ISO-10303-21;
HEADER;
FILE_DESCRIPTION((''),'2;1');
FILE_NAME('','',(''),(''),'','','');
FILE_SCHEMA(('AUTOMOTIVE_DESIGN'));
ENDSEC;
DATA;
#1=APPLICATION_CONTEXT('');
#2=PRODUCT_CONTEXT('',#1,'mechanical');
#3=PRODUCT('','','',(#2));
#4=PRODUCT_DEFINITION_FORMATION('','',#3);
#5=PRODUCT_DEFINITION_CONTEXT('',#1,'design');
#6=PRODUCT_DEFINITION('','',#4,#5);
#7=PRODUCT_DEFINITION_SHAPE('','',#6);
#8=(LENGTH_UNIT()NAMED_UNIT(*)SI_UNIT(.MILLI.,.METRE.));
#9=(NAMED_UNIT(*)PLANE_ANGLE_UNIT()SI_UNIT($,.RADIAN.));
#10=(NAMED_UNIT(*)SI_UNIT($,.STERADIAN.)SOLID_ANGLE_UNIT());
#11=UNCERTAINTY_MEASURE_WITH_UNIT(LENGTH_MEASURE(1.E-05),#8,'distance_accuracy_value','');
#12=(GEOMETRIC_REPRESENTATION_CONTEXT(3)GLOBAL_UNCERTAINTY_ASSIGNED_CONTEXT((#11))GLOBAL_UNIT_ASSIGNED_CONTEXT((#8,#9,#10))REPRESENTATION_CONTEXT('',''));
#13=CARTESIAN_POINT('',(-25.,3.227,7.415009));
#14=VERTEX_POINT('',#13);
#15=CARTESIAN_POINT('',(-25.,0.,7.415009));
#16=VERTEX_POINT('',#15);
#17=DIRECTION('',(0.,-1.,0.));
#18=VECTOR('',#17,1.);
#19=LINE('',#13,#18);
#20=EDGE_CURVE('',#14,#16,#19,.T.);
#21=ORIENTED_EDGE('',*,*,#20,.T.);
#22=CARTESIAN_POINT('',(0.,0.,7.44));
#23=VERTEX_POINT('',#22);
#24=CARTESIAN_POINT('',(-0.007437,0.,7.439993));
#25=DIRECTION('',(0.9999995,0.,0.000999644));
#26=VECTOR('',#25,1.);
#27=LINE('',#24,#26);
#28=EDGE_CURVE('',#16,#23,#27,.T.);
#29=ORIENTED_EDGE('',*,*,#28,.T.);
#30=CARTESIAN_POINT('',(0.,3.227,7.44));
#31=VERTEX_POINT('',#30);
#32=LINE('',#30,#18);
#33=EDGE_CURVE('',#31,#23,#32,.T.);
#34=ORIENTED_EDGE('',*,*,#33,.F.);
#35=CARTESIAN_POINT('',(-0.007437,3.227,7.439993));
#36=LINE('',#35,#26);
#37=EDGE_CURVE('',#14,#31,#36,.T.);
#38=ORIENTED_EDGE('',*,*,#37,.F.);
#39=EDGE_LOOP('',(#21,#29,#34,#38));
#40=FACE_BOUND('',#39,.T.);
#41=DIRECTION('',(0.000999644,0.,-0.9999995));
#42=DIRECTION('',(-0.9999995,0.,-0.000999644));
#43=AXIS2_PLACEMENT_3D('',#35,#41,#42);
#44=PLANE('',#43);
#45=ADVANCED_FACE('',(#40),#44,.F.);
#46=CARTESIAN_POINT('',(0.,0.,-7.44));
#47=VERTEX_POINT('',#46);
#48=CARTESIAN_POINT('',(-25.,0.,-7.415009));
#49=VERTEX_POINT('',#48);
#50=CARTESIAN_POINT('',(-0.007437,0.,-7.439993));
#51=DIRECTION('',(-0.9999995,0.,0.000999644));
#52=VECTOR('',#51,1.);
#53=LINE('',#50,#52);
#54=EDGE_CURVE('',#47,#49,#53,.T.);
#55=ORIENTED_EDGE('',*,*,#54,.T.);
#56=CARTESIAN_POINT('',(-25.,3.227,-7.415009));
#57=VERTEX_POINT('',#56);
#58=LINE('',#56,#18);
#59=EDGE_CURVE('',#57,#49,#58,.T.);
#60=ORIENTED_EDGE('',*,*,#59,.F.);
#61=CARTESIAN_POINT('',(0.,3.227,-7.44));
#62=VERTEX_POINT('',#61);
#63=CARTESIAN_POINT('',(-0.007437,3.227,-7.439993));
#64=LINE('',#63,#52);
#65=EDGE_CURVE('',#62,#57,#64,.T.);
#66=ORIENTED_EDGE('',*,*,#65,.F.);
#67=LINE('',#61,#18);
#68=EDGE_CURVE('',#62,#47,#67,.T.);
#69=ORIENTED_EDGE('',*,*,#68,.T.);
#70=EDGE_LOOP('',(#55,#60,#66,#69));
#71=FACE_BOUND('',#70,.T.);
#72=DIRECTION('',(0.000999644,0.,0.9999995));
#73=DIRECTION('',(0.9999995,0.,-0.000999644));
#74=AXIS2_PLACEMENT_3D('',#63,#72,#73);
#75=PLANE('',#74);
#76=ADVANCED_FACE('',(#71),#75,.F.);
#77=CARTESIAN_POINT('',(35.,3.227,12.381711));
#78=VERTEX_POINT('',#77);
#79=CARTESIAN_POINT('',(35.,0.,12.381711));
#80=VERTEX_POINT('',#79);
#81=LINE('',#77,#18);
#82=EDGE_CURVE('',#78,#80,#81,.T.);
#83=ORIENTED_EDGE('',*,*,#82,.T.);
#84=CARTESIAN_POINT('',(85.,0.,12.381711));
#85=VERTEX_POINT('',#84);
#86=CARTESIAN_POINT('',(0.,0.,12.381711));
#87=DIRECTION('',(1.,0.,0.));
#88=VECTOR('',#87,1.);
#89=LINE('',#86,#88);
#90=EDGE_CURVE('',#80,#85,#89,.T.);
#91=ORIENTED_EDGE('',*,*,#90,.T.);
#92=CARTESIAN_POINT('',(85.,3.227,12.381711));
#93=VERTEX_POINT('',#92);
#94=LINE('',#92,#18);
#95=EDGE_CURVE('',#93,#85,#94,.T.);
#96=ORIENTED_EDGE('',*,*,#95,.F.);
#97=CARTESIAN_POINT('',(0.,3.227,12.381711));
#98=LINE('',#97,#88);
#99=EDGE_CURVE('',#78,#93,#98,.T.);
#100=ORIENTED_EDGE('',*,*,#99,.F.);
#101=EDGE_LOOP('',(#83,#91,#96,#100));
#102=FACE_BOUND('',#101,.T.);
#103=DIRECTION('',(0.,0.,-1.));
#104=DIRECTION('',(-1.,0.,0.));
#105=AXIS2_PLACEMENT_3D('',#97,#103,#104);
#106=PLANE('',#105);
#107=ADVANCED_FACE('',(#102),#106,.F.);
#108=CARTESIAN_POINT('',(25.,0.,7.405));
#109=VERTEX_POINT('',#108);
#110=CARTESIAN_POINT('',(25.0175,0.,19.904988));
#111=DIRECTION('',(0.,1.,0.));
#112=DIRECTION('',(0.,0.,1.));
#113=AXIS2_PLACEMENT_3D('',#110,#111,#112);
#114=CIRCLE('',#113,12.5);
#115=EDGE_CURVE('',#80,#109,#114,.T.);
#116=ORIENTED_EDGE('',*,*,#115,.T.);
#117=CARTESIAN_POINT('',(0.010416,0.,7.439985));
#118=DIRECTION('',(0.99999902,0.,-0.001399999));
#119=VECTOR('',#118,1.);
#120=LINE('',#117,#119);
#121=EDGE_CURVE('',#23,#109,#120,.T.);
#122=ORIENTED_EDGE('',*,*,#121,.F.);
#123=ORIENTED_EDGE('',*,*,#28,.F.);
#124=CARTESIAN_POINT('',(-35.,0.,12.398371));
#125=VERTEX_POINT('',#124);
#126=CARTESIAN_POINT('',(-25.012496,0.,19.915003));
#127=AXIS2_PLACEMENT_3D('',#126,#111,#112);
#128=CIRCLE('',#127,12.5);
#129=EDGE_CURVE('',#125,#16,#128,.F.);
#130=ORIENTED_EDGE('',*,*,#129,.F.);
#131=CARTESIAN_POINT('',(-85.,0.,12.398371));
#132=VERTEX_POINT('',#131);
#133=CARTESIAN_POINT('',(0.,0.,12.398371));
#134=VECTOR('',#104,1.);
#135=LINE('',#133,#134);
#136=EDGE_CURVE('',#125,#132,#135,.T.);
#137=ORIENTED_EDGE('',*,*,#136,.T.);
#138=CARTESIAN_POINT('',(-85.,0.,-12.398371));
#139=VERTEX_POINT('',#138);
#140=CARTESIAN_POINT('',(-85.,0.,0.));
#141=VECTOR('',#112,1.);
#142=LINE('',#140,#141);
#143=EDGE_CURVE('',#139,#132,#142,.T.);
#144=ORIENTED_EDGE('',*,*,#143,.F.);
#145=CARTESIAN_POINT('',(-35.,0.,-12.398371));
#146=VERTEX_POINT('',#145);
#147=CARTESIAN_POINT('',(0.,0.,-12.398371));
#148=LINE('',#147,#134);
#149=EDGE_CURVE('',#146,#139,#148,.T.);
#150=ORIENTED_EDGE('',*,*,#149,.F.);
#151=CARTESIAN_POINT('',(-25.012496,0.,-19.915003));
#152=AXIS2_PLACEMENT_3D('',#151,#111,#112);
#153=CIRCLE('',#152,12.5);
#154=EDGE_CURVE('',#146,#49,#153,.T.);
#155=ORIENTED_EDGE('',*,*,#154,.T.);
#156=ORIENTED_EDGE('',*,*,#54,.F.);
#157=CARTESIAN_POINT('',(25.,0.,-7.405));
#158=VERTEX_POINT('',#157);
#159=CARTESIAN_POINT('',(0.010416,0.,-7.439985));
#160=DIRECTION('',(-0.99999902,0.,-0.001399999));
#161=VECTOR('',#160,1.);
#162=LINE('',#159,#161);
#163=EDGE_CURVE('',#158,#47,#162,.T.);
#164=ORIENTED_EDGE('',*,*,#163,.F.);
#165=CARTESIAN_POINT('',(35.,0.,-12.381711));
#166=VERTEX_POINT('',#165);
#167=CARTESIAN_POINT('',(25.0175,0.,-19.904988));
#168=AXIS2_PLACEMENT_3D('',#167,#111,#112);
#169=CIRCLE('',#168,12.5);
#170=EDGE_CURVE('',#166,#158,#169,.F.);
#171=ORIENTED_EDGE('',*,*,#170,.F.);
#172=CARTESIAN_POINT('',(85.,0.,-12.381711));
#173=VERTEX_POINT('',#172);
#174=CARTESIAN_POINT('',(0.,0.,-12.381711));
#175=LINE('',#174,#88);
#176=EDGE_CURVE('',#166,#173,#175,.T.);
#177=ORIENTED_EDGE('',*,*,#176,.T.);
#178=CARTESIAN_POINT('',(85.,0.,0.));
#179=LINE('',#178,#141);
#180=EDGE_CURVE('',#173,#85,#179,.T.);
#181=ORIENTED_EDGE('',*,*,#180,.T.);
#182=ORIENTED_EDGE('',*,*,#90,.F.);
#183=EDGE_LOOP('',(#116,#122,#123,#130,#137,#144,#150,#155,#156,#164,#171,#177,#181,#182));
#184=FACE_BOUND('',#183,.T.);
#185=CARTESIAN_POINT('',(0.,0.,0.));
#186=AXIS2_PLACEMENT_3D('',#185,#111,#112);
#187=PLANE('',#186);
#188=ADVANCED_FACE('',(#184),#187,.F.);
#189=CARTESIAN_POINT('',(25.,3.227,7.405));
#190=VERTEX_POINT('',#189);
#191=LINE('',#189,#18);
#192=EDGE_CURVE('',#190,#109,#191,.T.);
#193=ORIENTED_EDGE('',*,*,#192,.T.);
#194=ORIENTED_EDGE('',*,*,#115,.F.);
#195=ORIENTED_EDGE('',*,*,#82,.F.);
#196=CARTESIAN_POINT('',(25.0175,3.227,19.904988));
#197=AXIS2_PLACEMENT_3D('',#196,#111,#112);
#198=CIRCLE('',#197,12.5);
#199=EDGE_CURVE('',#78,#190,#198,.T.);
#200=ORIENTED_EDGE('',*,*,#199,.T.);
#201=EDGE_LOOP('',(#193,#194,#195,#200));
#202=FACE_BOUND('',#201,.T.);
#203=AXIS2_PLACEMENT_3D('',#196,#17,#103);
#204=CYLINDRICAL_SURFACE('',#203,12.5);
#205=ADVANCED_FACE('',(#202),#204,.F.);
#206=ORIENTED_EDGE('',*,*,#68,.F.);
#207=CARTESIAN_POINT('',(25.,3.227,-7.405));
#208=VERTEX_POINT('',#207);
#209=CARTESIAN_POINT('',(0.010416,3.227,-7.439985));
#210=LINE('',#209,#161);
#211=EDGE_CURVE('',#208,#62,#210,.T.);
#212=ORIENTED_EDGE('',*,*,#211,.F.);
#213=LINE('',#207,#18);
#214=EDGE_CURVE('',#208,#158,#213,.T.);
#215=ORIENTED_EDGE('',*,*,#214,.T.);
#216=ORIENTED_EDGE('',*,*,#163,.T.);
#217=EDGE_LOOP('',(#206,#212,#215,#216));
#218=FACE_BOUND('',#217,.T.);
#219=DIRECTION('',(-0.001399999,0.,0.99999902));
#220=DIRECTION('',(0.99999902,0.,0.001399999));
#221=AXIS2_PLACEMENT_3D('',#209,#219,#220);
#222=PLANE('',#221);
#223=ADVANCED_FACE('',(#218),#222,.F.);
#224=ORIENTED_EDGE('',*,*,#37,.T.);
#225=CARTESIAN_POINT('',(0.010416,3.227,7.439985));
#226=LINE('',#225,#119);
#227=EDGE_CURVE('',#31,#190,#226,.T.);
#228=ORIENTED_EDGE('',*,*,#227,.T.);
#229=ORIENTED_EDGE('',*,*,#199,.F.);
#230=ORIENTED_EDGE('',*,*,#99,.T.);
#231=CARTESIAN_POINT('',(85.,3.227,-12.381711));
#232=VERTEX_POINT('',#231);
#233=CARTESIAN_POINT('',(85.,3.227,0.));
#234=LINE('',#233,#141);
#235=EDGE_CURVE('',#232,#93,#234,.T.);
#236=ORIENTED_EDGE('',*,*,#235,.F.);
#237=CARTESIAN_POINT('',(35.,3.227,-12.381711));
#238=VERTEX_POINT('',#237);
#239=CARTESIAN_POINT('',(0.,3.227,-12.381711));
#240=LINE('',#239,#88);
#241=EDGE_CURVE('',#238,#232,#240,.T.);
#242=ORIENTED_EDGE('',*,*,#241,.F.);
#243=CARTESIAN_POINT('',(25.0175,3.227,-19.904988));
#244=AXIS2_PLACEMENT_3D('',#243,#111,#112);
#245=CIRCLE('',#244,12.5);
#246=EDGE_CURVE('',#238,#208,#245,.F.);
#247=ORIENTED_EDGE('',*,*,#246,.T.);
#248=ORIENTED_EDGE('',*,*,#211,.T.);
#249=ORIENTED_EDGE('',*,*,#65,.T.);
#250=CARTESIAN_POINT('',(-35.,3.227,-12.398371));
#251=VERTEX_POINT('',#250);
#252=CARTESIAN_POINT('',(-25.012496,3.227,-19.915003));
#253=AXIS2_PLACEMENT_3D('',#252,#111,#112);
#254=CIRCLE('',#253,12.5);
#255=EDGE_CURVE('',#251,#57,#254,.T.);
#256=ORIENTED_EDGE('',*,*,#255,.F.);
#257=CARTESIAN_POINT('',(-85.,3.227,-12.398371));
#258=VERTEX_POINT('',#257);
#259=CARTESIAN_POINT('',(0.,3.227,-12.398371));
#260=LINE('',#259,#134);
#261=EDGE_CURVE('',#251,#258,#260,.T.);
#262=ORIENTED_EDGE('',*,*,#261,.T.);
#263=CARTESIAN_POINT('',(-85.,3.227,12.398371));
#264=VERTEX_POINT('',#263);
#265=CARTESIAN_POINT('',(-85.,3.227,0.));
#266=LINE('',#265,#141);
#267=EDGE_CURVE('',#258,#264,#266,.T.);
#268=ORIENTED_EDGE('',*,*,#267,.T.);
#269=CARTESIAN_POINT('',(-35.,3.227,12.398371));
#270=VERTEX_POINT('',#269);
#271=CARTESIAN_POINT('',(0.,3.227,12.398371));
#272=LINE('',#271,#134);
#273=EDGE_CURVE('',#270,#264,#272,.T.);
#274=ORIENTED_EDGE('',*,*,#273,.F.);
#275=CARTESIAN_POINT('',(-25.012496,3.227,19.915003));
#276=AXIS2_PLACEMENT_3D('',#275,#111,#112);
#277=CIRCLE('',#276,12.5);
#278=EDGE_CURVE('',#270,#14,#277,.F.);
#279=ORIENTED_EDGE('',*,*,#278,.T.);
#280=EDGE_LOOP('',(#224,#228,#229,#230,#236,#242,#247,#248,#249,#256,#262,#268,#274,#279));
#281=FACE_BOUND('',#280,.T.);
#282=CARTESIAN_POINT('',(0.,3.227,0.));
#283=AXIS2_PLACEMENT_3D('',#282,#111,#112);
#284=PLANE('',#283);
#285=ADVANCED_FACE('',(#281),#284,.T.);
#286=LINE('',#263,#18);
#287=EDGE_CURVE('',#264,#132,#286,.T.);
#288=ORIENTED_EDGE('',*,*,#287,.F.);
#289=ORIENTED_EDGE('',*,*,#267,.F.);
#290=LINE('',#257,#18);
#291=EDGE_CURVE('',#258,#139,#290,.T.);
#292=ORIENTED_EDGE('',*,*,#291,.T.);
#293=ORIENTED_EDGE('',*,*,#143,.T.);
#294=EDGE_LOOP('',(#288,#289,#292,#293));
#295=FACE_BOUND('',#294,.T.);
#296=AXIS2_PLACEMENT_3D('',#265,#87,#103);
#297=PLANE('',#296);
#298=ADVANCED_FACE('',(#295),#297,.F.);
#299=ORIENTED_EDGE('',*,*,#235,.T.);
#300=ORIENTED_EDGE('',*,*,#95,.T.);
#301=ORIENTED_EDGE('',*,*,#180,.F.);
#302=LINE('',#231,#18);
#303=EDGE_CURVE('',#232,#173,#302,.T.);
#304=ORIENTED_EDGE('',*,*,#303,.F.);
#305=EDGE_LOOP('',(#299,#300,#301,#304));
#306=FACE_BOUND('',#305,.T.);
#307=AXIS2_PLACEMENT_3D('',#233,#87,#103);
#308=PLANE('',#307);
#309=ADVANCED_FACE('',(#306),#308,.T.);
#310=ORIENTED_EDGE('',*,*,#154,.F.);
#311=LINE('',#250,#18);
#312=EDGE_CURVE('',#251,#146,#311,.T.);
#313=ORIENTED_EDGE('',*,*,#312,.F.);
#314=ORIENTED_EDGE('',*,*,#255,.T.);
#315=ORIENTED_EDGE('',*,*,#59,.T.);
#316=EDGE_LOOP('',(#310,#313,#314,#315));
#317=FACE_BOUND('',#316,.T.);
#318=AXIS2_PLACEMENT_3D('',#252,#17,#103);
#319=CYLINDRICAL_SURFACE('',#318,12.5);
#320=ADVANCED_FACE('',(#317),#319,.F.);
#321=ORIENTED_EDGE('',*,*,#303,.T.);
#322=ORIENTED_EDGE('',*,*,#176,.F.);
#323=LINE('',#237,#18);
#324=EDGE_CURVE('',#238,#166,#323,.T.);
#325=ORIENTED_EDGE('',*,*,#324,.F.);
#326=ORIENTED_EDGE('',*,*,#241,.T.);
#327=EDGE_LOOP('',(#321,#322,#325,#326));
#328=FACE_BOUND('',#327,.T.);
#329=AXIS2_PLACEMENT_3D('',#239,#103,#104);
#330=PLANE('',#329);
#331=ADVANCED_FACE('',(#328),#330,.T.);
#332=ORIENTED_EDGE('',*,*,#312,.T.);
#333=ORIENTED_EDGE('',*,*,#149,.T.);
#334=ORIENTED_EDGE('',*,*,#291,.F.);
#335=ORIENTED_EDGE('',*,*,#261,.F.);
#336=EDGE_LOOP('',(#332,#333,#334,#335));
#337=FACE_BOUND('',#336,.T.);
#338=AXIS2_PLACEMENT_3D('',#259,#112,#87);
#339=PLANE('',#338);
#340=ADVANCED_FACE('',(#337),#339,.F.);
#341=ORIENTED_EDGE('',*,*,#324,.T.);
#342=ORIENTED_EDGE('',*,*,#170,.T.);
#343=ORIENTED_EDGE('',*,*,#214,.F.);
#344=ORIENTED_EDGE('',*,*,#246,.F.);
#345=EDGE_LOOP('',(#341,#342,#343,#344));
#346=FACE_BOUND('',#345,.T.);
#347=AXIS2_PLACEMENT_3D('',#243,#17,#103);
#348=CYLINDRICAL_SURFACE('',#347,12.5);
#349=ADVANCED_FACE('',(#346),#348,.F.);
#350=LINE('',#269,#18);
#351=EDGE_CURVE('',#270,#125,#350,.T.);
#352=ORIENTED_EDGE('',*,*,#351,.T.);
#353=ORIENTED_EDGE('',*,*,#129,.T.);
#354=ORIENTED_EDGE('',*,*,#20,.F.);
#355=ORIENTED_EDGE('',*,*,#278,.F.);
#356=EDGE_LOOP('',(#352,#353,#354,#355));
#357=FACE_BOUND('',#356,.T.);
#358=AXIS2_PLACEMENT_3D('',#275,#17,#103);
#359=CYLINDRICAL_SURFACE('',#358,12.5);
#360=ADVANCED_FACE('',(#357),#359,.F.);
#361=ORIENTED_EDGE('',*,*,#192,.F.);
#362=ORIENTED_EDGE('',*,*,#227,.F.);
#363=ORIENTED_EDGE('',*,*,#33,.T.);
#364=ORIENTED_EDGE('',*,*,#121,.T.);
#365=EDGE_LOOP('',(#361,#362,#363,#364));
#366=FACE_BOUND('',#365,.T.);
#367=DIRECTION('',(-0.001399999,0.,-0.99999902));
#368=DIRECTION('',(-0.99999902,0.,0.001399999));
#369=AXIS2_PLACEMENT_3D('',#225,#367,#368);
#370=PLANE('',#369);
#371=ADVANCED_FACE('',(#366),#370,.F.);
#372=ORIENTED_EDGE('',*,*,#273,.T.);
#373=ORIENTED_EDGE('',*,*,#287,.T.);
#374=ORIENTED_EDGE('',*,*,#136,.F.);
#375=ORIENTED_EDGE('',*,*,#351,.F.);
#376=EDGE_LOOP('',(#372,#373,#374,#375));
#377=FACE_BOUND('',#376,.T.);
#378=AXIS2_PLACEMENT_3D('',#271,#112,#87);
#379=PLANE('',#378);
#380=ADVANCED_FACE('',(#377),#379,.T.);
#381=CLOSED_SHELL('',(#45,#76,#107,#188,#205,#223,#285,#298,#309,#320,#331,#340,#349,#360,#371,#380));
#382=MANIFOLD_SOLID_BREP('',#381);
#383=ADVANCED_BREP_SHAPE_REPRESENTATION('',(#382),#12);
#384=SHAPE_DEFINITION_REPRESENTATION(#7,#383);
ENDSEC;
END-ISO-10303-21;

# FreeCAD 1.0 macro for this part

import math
import FreeCAD as App
import Part
import Sketcher

doc = App.newDocument("Part")
body = doc.addObject("PartDesign::Body", "Body")

# Sketch on XZ plane
sketch1 = body.newObject("Sketcher::SketchObject", "Sketch")
sketch1.AttachmentSupport = (doc.getObject("XZ_Plane"), [""])
sketch1.MapMode = "FlatFace"
sketch1.addGeometry([
    Part.LineSegment(App.Vector(85, -12, 0), App.Vector(35, -12, 0)),  # 0
    Part.ArcOfCircle(Part.Circle(App.Vector(25, -20, 0), App.Vector(0, 0, 1), 12), math.radians(37), math.radians(90)),  # 1
    Part.LineSegment(App.Vector(25, -7, 0), App.Vector(0, -7, 0)),  # 2
    Part.LineSegment(App.Vector(0, -7, 0), App.Vector(-25, -7, 0)),  # 3
    Part.ArcOfCircle(Part.Circle(App.Vector(-25, -20, 0), App.Vector(0, 0, 1), 12), math.radians(90), math.radians(143)),  # 4
    Part.LineSegment(App.Vector(-35, -12, 0), App.Vector(-85, -12, 0)),  # 5
    Part.LineSegment(App.Vector(-85, -12, 0), App.Vector(-85, 12, 0)),  # 6
    Part.LineSegment(App.Vector(-85, 12, 0), App.Vector(-35, 12, 0)),  # 7
    Part.ArcOfCircle(Part.Circle(App.Vector(-25, 20, 0), App.Vector(0, 0, 1), 12), math.radians(-143), math.radians(-90)),  # 8
    Part.LineSegment(App.Vector(-25, 7, 0), App.Vector(0, 7, 0)),  # 9
    Part.LineSegment(App.Vector(0, 7, 0), App.Vector(25, 7, 0)),  # 10
    Part.ArcOfCircle(Part.Circle(App.Vector(25, 20, 0), App.Vector(0, 0, 1), 12), math.radians(-90), math.radians(-37)),  # 11
    Part.LineSegment(App.Vector(35, 12, 0), App.Vector(85, 12, 0)),  # 12
    Part.LineSegment(App.Vector(85, 12, 0), App.Vector(85, -12, 0)),  # 13
], False)
sketch1.addConstraint([
    Sketcher.Constraint("Coincident", 0, 2, 1, 1),
    Sketcher.Constraint("Tangent", 1, 2, 2, 1),
    Sketcher.Constraint("Coincident", 2, 2, 3, 1),
    Sketcher.Constraint("Tangent", 3, 2, 4, 1),
    Sketcher.Constraint("Coincident", 4, 2, 5, 1),
    Sketcher.Constraint("Coincident", 5, 2, 6, 1),
    Sketcher.Constraint("Coincident", 6, 2, 7, 1),
    Sketcher.Constraint("Coincident", 7, 2, 8, 1),
    Sketcher.Constraint("Tangent", 8, 2, 9, 1),
    Sketcher.Constraint("Coincident", 9, 2, 10, 1),
    Sketcher.Constraint("Tangent", 10, 2, 11, 1),
    Sketcher.Constraint("Coincident", 11, 2, 12, 1),
    Sketcher.Constraint("Coincident", 12, 2, 13, 1),
    Sketcher.Constraint("Coincident", 13, 2, 0, 1),
    Sketcher.Constraint("Horizontal", 0),
    Sketcher.Constraint("Horizontal", 5),
    Sketcher.Constraint("Vertical", 6),
    Sketcher.Constraint("Horizontal", 7),
    Sketcher.Constraint("Horizontal", 12),
    Sketcher.Constraint("Vertical", 13),
    Sketcher.Constraint("Equal", 1, 4),
    Sketcher.Constraint("Equal", 4, 8),
    Sketcher.Constraint("Equal", 8, 11),
    Sketcher.Constraint("Symmetric", 2, 2, 9, 2, -1, 1),
    Sketcher.Constraint("Symmetric", 4, 3, 8, 3, -1),
    Sketcher.Constraint("Symmetric", 1, 3, 11, 3, -1),
    Sketcher.Constraint("PointOnObject", 2, 2, -2),
    Sketcher.Constraint("Vertical", 4, 2, 7, 2),
    Sketcher.Constraint("Vertical", 0, 2, 11, 2),
    Sketcher.Constraint("Equal", 0, 5),
    Sketcher.Constraint("Radius", 1, 12.5),
    Sketcher.Constraint("DistanceX", 0, 2, 0, 1, 50.0),
    Sketcher.Constraint("DistanceX", -1, 1, 0, 2, 35.0),
    Sketcher.Constraint("DistanceX", -1, 1, 1, 2, 25.0),
    Sketcher.Constraint("DistanceX", 3, 2, -1, 1, 25.0),
    Sketcher.Constraint("DistanceX", 4, 2, -1, 1, 35.0),
    Sketcher.Constraint("DistanceY", 2, 2, -1, 1, 7.44),
    Sketcher.Constraint("DistanceY", 1, 2, 10, 2, 14.81),
    Sketcher.Constraint("DistanceY", 6, 1, 6, 2, 24.796742),
])
pad1 = body.newObject("PartDesign::Pad", "Pad")
pad1.Profile = sketch1
pad1.Length = 3.227
pad1.Reversed = True

doc.recompute()
